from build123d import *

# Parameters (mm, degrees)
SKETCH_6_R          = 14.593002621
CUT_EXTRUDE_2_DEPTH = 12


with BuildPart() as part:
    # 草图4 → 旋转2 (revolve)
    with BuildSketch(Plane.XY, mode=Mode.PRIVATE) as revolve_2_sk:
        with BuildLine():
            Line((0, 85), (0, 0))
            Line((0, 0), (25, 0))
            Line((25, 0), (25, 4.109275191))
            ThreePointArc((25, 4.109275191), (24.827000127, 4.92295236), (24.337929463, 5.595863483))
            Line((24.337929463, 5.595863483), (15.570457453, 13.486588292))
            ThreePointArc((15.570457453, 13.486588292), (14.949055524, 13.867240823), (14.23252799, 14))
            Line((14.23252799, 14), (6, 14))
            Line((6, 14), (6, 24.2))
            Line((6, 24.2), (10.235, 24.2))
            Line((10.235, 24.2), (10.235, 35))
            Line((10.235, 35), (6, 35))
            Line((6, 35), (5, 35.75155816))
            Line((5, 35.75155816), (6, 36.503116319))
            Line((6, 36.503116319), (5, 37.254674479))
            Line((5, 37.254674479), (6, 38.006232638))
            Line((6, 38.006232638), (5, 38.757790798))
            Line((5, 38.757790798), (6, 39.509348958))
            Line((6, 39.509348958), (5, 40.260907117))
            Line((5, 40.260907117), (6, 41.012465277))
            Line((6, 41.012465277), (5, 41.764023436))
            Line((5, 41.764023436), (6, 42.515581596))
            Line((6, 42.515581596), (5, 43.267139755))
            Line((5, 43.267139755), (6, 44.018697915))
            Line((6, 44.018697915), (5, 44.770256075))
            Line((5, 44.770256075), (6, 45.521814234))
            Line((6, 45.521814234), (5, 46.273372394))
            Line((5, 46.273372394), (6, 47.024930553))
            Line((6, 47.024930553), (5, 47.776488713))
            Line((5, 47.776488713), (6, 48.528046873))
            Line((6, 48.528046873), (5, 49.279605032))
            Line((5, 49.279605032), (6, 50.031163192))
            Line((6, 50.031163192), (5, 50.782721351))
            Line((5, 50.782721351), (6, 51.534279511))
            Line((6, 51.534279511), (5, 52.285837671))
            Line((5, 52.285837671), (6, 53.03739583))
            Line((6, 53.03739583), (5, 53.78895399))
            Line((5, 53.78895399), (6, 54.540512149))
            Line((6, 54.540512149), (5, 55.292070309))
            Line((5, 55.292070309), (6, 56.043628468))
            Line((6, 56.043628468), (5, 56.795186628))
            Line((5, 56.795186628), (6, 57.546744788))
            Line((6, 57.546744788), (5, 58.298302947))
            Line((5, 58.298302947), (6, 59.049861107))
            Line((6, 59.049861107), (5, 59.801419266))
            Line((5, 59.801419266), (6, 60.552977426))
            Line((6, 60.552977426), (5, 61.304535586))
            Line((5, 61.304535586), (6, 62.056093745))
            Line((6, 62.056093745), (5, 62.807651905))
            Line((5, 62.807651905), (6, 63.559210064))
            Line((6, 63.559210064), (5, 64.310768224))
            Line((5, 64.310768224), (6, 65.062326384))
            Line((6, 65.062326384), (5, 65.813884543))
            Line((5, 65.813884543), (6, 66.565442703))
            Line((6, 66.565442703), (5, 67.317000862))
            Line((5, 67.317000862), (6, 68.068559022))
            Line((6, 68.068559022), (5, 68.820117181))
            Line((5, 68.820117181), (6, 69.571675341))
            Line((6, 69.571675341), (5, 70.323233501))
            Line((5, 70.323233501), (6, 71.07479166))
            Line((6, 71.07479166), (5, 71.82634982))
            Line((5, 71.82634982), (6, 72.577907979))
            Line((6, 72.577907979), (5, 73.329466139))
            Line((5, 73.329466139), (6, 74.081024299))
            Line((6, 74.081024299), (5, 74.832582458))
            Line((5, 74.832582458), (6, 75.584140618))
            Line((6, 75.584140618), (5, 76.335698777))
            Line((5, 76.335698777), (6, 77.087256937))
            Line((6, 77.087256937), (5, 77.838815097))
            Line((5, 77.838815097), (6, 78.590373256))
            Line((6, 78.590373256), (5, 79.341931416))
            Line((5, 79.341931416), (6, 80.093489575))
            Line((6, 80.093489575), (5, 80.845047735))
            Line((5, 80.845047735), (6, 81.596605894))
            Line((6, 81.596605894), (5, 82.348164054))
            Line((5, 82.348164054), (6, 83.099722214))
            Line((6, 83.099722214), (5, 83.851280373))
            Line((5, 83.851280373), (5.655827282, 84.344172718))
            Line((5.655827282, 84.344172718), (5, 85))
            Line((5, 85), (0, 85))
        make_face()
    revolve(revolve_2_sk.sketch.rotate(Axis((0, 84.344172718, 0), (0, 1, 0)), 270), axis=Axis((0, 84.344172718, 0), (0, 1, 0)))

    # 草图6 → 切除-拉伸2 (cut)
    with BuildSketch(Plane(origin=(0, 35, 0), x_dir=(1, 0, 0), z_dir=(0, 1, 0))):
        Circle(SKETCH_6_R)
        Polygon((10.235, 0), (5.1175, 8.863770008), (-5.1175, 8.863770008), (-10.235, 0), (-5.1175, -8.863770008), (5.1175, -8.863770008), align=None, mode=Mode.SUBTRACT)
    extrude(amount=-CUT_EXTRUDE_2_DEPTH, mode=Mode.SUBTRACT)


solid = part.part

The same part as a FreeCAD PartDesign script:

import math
import FreeCAD as App
import Part
import Sketcher

V = App.Vector
Q = App.Units.Quantity

doc = App.newDocument("Part")
body = doc.addObject("PartDesign::Body", "Body")

# Sketch on XY plane
sketch1 = body.newObject("Sketcher::SketchObject", "Sketch")
sketch1.AttachmentSupport = (doc.getObject("XY_Plane"), [""])
sketch1.MapMode = "FlatFace"
sketch1.addGeometry([
    Part.LineSegment(V(0, 85, 0), V(0, 0, 0)),  # 0
    Part.LineSegment(V(0, 0, 0), V(25, 0, 0)),  # 1
    Part.LineSegment(V(25, 0, 0), V(25, 4.1, 0)),  # 2
    Part.ArcOfCircle(Part.Circle(V(23, 4.1, 0), V(0, 0, 1), 2), math.radians(0), math.radians(48)),  # 3
    Part.LineSegment(V(24.3, 5.6, 0), V(15.6, 13.5, 0)),  # 4
    Part.ArcOfCircle(Part.Circle(V(14.2, 12, 0), V(0, 0, 1), 2), math.radians(48), math.radians(90)),  # 5
    Part.LineSegment(V(14.2, 14, 0), V(6, 14, 0)),  # 6
    Part.LineSegment(V(6, 14, 0), V(6, 24.2, 0)),  # 7
    Part.LineSegment(V(6, 24.2, 0), V(10.2, 24.2, 0)),  # 8
    Part.LineSegment(V(10.2, 24.2, 0), V(10.2, 35, 0)),  # 9
    Part.LineSegment(V(10.2, 35, 0), V(6, 35, 0)),  # 10
    Part.LineSegment(V(6, 35, 0), V(5, 35.8, 0)),  # 11
    Part.LineSegment(V(5, 35.8, 0), V(6, 36.5, 0)),  # 12
    Part.LineSegment(V(6, 36.5, 0), V(5, 37.3, 0)),  # 13
    Part.LineSegment(V(5, 37.3, 0), V(6, 38, 0)),  # 14
    Part.LineSegment(V(6, 38, 0), V(5, 38.8, 0)),  # 15
    Part.LineSegment(V(5, 38.8, 0), V(6, 39.5, 0)),  # 16
    Part.LineSegment(V(6, 39.5, 0), V(5, 40.3, 0)),  # 17
    Part.LineSegment(V(5, 40.3, 0), V(6, 41, 0)),  # 18
    Part.LineSegment(V(6, 41, 0), V(5, 41.8, 0)),  # 19
    Part.LineSegment(V(5, 41.8, 0), V(6, 42.5, 0)),  # 20
    Part.LineSegment(V(6, 42.5, 0), V(5, 43.3, 0)),  # 21
    Part.LineSegment(V(5, 43.3, 0), V(6, 44, 0)),  # 22
    Part.LineSegment(V(6, 44, 0), V(5, 44.8, 0)),  # 23
    Part.LineSegment(V(5, 44.8, 0), V(6, 45.5, 0)),  # 24
    Part.LineSegment(V(6, 45.5, 0), V(5, 46.3, 0)),  # 25
    Part.LineSegment(V(5, 46.3, 0), V(6, 47, 0)),  # 26
    Part.LineSegment(V(6, 47, 0), V(5, 47.8, 0)),  # 27
    Part.LineSegment(V(5, 47.8, 0), V(6, 48.5, 0)),  # 28
    Part.LineSegment(V(6, 48.5, 0), V(5, 49.3, 0)),  # 29
    Part.LineSegment(V(5, 49.3, 0), V(6, 50, 0)),  # 30
    Part.LineSegment(V(6, 50, 0), V(5, 50.8, 0)),  # 31
    Part.LineSegment(V(5, 50.8, 0), V(6, 51.5, 0)),  # 32
    Part.LineSegment(V(6, 51.5, 0), V(5, 52.3, 0)),  # 33
    Part.LineSegment(V(5, 52.3, 0), V(6, 53, 0)),  # 34
    Part.LineSegment(V(6, 53, 0), V(5, 53.8, 0)),  # 35
    Part.LineSegment(V(5, 53.8, 0), V(6, 54.5, 0)),  # 36
    Part.LineSegment(V(6, 54.5, 0), V(5, 55.3, 0)),  # 37
    Part.LineSegment(V(5, 55.3, 0), V(6, 56, 0)),  # 38
    Part.LineSegment(V(6, 56, 0), V(5, 56.8, 0)),  # 39
    Part.LineSegment(V(5, 56.8, 0), V(6, 57.5, 0)),  # 40
    Part.LineSegment(V(6, 57.5, 0), V(5, 58.3, 0)),  # 41
    Part.LineSegment(V(5, 58.3, 0), V(6, 59, 0)),  # 42
    Part.LineSegment(V(6, 59, 0), V(5, 59.8, 0)),  # 43
    Part.LineSegment(V(5, 59.8, 0), V(6, 60.6, 0)),  # 44
    Part.LineSegment(V(6, 60.6, 0), V(5, 61.3, 0)),  # 45
    Part.LineSegment(V(5, 61.3, 0), V(6, 62.1, 0)),  # 46
    Part.LineSegment(V(6, 62.1, 0), V(5, 62.8, 0)),  # 47
    Part.LineSegment(V(5, 62.8, 0), V(6, 63.6, 0)),  # 48
    Part.LineSegment(V(6, 63.6, 0), V(5, 64.3, 0)),  # 49
    Part.LineSegment(V(5, 64.3, 0), V(6, 65.1, 0)),  # 50
    Part.LineSegment(V(6, 65.1, 0), V(5, 65.8, 0)),  # 51
    Part.LineSegment(V(5, 65.8, 0), V(6, 66.6, 0)),  # 52
    Part.LineSegment(V(6, 66.6, 0), V(5, 67.3, 0)),  # 53
    Part.LineSegment(V(5, 67.3, 0), V(6, 68.1, 0)),  # 54
    Part.LineSegment(V(6, 68.1, 0), V(5, 68.8, 0)),  # 55
    Part.LineSegment(V(5, 68.8, 0), V(6, 69.6, 0)),  # 56
    Part.LineSegment(V(6, 69.6, 0), V(5, 70.3, 0)),  # 57
    Part.LineSegment(V(5, 70.3, 0), V(6, 71.1, 0)),  # 58
    Part.LineSegment(V(6, 71.1, 0), V(5, 71.8, 0)),  # 59
    Part.LineSegment(V(5, 71.8, 0), V(6, 72.6, 0)),  # 60
    Part.LineSegment(V(6, 72.6, 0), V(5, 73.3, 0)),  # 61
    Part.LineSegment(V(5, 73.3, 0), V(6, 74.1, 0)),  # 62
    Part.LineSegment(V(6, 74.1, 0), V(5, 74.8, 0)),  # 63
    Part.LineSegment(V(5, 74.8, 0), V(6, 75.6, 0)),  # 64
    Part.LineSegment(V(6, 75.6, 0), V(5, 76.3, 0)),  # 65
    Part.LineSegment(V(5, 76.3, 0), V(6, 77.1, 0)),  # 66
    Part.LineSegment(V(6, 77.1, 0), V(5, 77.8, 0)),  # 67
    Part.LineSegment(V(5, 77.8, 0), V(6, 78.6, 0)),  # 68
    Part.LineSegment(V(6, 78.6, 0), V(5, 79.3, 0)),  # 69
    Part.LineSegment(V(5, 79.3, 0), V(6, 80.1, 0)),  # 70
    Part.LineSegment(V(6, 80.1, 0), V(5, 80.8, 0)),  # 71
    Part.LineSegment(V(5, 80.8, 0), V(6, 81.6, 0)),  # 72
    Part.LineSegment(V(6, 81.6, 0), V(5, 82.3, 0)),  # 73
    Part.LineSegment(V(5, 82.3, 0), V(6, 83.1, 0)),  # 74
    Part.LineSegment(V(6, 83.1, 0), V(5, 83.9, 0)),  # 75
    Part.LineSegment(V(5, 83.9, 0), V(5.7, 84.3, 0)),  # 76
    Part.LineSegment(V(5.7, 84.3, 0), V(5, 85, 0)),  # 77
    Part.LineSegment(V(5, 85, 0), V(0, 85, 0)),  # 78
], False)
sketch1.addConstraint([
    Sketcher.Constraint("Coincident", 0, 2, 1, 1),
    Sketcher.Constraint("Coincident", 1, 2, 2, 1),
    Sketcher.Constraint("Tangent", 2, 2, 3, 1),
    Sketcher.Constraint("Tangent", 3, 2, 4, 1),
    Sketcher.Constraint("Tangent", 4, 2, 5, 1),
    Sketcher.Constraint("Tangent", 5, 2, 6, 1),
    Sketcher.Constraint("Coincident", 6, 2, 7, 1),
    Sketcher.Constraint("Coincident", 7, 2, 8, 1),
    Sketcher.Constraint("Coincident", 8, 2, 9, 1),
    Sketcher.Constraint("Coincident", 9, 2, 10, 1),
    Sketcher.Constraint("Coincident", 10, 2, 11, 1),
    Sketcher.Constraint("Coincident", 11, 2, 12, 1),
    Sketcher.Constraint("Coincident", 12, 2, 13, 1),
    Sketcher.Constraint("Coincident", 13, 2, 14, 1),
    Sketcher.Constraint("Coincident", 14, 2, 15, 1),
    Sketcher.Constraint("Coincident", 15, 2, 16, 1),
    Sketcher.Constraint("Coincident", 16, 2, 17, 1),
    Sketcher.Constraint("Coincident", 17, 2, 18, 1),
    Sketcher.Constraint("Coincident", 18, 2, 19, 1),
    Sketcher.Constraint("Coincident", 19, 2, 20, 1),
    Sketcher.Constraint("Coincident", 20, 2, 21, 1),
    Sketcher.Constraint("Coincident", 21, 2, 22, 1),
    Sketcher.Constraint("Coincident", 22, 2, 23, 1),
    Sketcher.Constraint("Coincident", 23, 2, 24, 1),
    Sketcher.Constraint("Coincident", 24, 2, 25, 1),
    Sketcher.Constraint("Coincident", 25, 2, 26, 1),
    Sketcher.Constraint("Coincident", 26, 2, 27, 1),
    Sketcher.Constraint("Coincident", 27, 2, 28, 1),
    Sketcher.Constraint("Coincident", 28, 2, 29, 1),
    Sketcher.Constraint("Coincident", 29, 2, 30, 1),
    Sketcher.Constraint("Coincident", 30, 2, 31, 1),
    Sketcher.Constraint("Coincident", 31, 2, 32, 1),
    Sketcher.Constraint("Coincident", 32, 2, 33, 1),
    Sketcher.Constraint("Coincident", 33, 2, 34, 1),
    Sketcher.Constraint("Coincident", 34, 2, 35, 1),
    Sketcher.Constraint("Coincident", 35, 2, 36, 1),
    Sketcher.Constraint("Coincident", 36, 2, 37, 1),
    Sketcher.Constraint("Coincident", 37, 2, 38, 1),
    Sketcher.Constraint("Coincident", 38, 2, 39, 1),
    Sketcher.Constraint("Coincident", 39, 2, 40, 1),
    Sketcher.Constraint("Coincident", 40, 2, 41, 1),
    Sketcher.Constraint("Coincident", 41, 2, 42, 1),
    Sketcher.Constraint("Coincident", 42, 2, 43, 1),
    Sketcher.Constraint("Coincident", 43, 2, 44, 1),
    Sketcher.Constraint("Coincident", 44, 2, 45, 1),
    Sketcher.Constraint("Coincident", 45, 2, 46, 1),
    Sketcher.Constraint("Coincident", 46, 2, 47, 1),
    Sketcher.Constraint("Coincident", 47, 2, 48, 1),
    Sketcher.Constraint("Coincident", 48, 2, 49, 1),
    Sketcher.Constraint("Coincident", 49, 2, 50, 1),
    Sketcher.Constraint("Coincident", 50, 2, 51, 1),
    Sketcher.Constraint("Coincident", 51, 2, 52, 1),
    Sketcher.Constraint("Coincident", 52, 2, 53, 1),
    Sketcher.Constraint("Coincident", 53, 2, 54, 1),
    Sketcher.Constraint("Coincident", 54, 2, 55, 1),
    Sketcher.Constraint("Coincident", 55, 2, 56, 1),
    Sketcher.Constraint("Coincident", 56, 2, 57, 1),
    Sketcher.Constraint("Coincident", 57, 2, 58, 1),
    Sketcher.Constraint("Coincident", 58, 2, 59, 1),
    Sketcher.Constraint("Coincident", 59, 2, 60, 1),
    Sketcher.Constraint("Coincident", 60, 2, 61, 1),
    Sketcher.Constraint("Coincident", 61, 2, 62, 1),
    Sketcher.Constraint("Coincident", 62, 2, 63, 1),
    Sketcher.Constraint("Coincident", 63, 2, 64, 1),
    Sketcher.Constraint("Coincident", 64, 2, 65, 1),
    Sketcher.Constraint("Coincident", 65, 2, 66, 1),
    Sketcher.Constraint("Coincident", 66, 2, 67, 1),
    Sketcher.Constraint("Coincident", 67, 2, 68, 1),
    Sketcher.Constraint("Coincident", 68, 2, 69, 1),
    Sketcher.Constraint("Coincident", 69, 2, 70, 1),
    Sketcher.Constraint("Coincident", 70, 2, 71, 1),
    Sketcher.Constraint("Coincident", 71, 2, 72, 1),
    Sketcher.Constraint("Coincident", 72, 2, 73, 1),
    Sketcher.Constraint("Coincident", 73, 2, 74, 1),
    Sketcher.Constraint("Coincident", 74, 2, 75, 1),
    Sketcher.Constraint("Coincident", 75, 2, 76, 1),
    Sketcher.Constraint("Coincident", 76, 2, 77, 1),
    Sketcher.Constraint("Coincident", 77, 2, 78, 1),
    Sketcher.Constraint("Coincident", 78, 2, 0, 1),
    Sketcher.Constraint("Vertical", 0),
    Sketcher.Constraint("Horizontal", 1),
    Sketcher.Constraint("Vertical", 2),
    Sketcher.Constraint("Horizontal", 6),
    Sketcher.Constraint("Vertical", 7),
    Sketcher.Constraint("Horizontal", 8),
    Sketcher.Constraint("Vertical", 9),
    Sketcher.Constraint("Horizontal", 10),
    Sketcher.Constraint("Horizontal", 78),
    Sketcher.Constraint("Coincident", 0, 2, -1, 1),
    Sketcher.Constraint("Equal", 3, 5),
    Sketcher.Constraint("Parallel", 11, 13),
    Sketcher.Constraint("Parallel", 12, 14),
    Sketcher.Constraint("Parallel", 13, 15),
    Sketcher.Constraint("Parallel", 14, 16),
    Sketcher.Constraint("Parallel", 15, 17),
    Sketcher.Constraint("Parallel", 16, 18),
    Sketcher.Constraint("Parallel", 17, 19),
    Sketcher.Constraint("Parallel", 18, 20),
    Sketcher.Constraint("Parallel", 19, 21),
    Sketcher.Constraint("Parallel", 20, 22),
    Sketcher.Constraint("Parallel", 21, 23),
    Sketcher.Constraint("Parallel", 22, 24),
    Sketcher.Constraint("Parallel", 23, 25),
    Sketcher.Constraint("Parallel", 24, 26),
    Sketcher.Constraint("Parallel", 25, 27),
    Sketcher.Constraint("Parallel", 26, 28),
    Sketcher.Constraint("Parallel", 27, 29),
    Sketcher.Constraint("Parallel", 28, 30),
    Sketcher.Constraint("Parallel", 29, 31),
    Sketcher.Constraint("Parallel", 30, 32),
    Sketcher.Constraint("Parallel", 31, 33),
    Sketcher.Constraint("Parallel", 32, 34),
    Sketcher.Constraint("Parallel", 33, 35),
    Sketcher.Constraint("Parallel", 34, 36),
    Sketcher.Constraint("Parallel", 35, 37),
    Sketcher.Constraint("Parallel", 36, 38),
    Sketcher.Constraint("Parallel", 37, 39),
    Sketcher.Constraint("Parallel", 38, 40),
    Sketcher.Constraint("Parallel", 39, 41),
    Sketcher.Constraint("Parallel", 40, 42),
    Sketcher.Constraint("Parallel", 41, 43),
    Sketcher.Constraint("Parallel", 42, 44),
    Sketcher.Constraint("Parallel", 43, 45),
    Sketcher.Constraint("Parallel", 44, 46),
    Sketcher.Constraint("Parallel", 45, 47),
    Sketcher.Constraint("Parallel", 46, 48),
    Sketcher.Constraint("Parallel", 47, 49),
    Sketcher.Constraint("Parallel", 48, 50),
    Sketcher.Constraint("Parallel", 49, 51),
    Sketcher.Constraint("Parallel", 50, 52),
    Sketcher.Constraint("Parallel", 51, 53),
    Sketcher.Constraint("Parallel", 52, 54),
    Sketcher.Constraint("Parallel", 53, 55),
    Sketcher.Constraint("Parallel", 54, 56),
    Sketcher.Constraint("Parallel", 55, 57),
    Sketcher.Constraint("Parallel", 56, 58),
    Sketcher.Constraint("Parallel", 57, 59),
    Sketcher.Constraint("Parallel", 58, 60),
    Sketcher.Constraint("Parallel", 59, 61),
    Sketcher.Constraint("Parallel", 60, 62),
    Sketcher.Constraint("Parallel", 61, 63),
    Sketcher.Constraint("Parallel", 62, 64),
    Sketcher.Constraint("Parallel", 63, 65),
    Sketcher.Constraint("Parallel", 64, 66),
    Sketcher.Constraint("Parallel", 65, 67),
    Sketcher.Constraint("Parallel", 66, 68),
    Sketcher.Constraint("Parallel", 67, 69),
    Sketcher.Constraint("Parallel", 68, 70),
    Sketcher.Constraint("Parallel", 69, 71),
    Sketcher.Constraint("Parallel", 70, 72),
    Sketcher.Constraint("Parallel", 71, 73),
    Sketcher.Constraint("Parallel", 72, 74),
    Sketcher.Constraint("Parallel", 73, 75),
    Sketcher.Constraint("Parallel", 74, 76),
    Sketcher.Constraint("Vertical", 7, 2, 10, 2),
    Sketcher.Constraint("Vertical", 10, 2, 12, 2),
    Sketcher.Constraint("Vertical", 11, 2, 13, 2),
    Sketcher.Constraint("Vertical", 12, 2, 14, 2),
    Sketcher.Constraint("Vertical", 13, 2, 15, 2),
    Sketcher.Constraint("Vertical", 14, 2, 16, 2),
    Sketcher.Constraint("Vertical", 15, 2, 17, 2),
    Sketcher.Constraint("Vertical", 16, 2, 18, 2),
    Sketcher.Constraint("Vertical", 17, 2, 19, 2),
    Sketcher.Constraint("Vertical", 18, 2, 20, 2),
    Sketcher.Constraint("Vertical", 19, 2, 21, 2),
    Sketcher.Constraint("Vertical", 20, 2, 22, 2),
    Sketcher.Constraint("Vertical", 21, 2, 23, 2),
    Sketcher.Constraint("Vertical", 22, 2, 24, 2),
    Sketcher.Constraint("Vertical", 23, 2, 25, 2),
    Sketcher.Constraint("Vertical", 24, 2, 26, 2),
    Sketcher.Constraint("Vertical", 25, 2, 27, 2),
    Sketcher.Constraint("Vertical", 26, 2, 28, 2),
    Sketcher.Constraint("Vertical", 27, 2, 29, 2),
    Sketcher.Constraint("Vertical", 28, 2, 30, 2),
    Sketcher.Constraint("Vertical", 29, 2, 31, 2),
    Sketcher.Constraint("Vertical", 30, 2, 32, 2),
    Sketcher.Constraint("Vertical", 31, 2, 33, 2),
    Sketcher.Constraint("Vertical", 32, 2, 34, 2),
    Sketcher.Constraint("Vertical", 33, 2, 35, 2),
    Sketcher.Constraint("Vertical", 34, 2, 36, 2),
    Sketcher.Constraint("Vertical", 35, 2, 37, 2),
    Sketcher.Constraint("Vertical", 36, 2, 38, 2),
    Sketcher.Constraint("Vertical", 37, 2, 39, 2),
    Sketcher.Constraint("Vertical", 38, 2, 40, 2),
    Sketcher.Constraint("Vertical", 39, 2, 41, 2),
    Sketcher.Constraint("Vertical", 40, 2, 42, 2),
    Sketcher.Constraint("Vertical", 41, 2, 43, 2),
    Sketcher.Constraint("Vertical", 42, 2, 44, 2),
    Sketcher.Constraint("Vertical", 43, 2, 45, 2),
    Sketcher.Constraint("Vertical", 44, 2, 46, 2),
    Sketcher.Constraint("Vertical", 45, 2, 47, 2),
    Sketcher.Constraint("Vertical", 46, 2, 48, 2),
    Sketcher.Constraint("Vertical", 47, 2, 49, 2),
    Sketcher.Constraint("Vertical", 48, 2, 50, 2),
    Sketcher.Constraint("Vertical", 49, 2, 51, 2),
    Sketcher.Constraint("Vertical", 50, 2, 52, 2),
    Sketcher.Constraint("Vertical", 51, 2, 53, 2),
    Sketcher.Constraint("Vertical", 52, 2, 54, 2),
    Sketcher.Constraint("Vertical", 53, 2, 55, 2),
    Sketcher.Constraint("Vertical", 54, 2, 56, 2),
    Sketcher.Constraint("Vertical", 55, 2, 57, 2),
    Sketcher.Constraint("Vertical", 56, 2, 58, 2),
    Sketcher.Constraint("Vertical", 57, 2, 59, 2),
    Sketcher.Constraint("Vertical", 58, 2, 60, 2),
    Sketcher.Constraint("Vertical", 59, 2, 61, 2),
    Sketcher.Constraint("Vertical", 60, 2, 62, 2),
    Sketcher.Constraint("Vertical", 61, 2, 63, 2),
    Sketcher.Constraint("Vertical", 62, 2, 64, 2),
    Sketcher.Constraint("Vertical", 63, 2, 65, 2),
    Sketcher.Constraint("Vertical", 64, 2, 66, 2),
    Sketcher.Constraint("Vertical", 65, 2, 67, 2),
    Sketcher.Constraint("Vertical", 66, 2, 68, 2),
    Sketcher.Constraint("Vertical", 67, 2, 69, 2),
    Sketcher.Constraint("Vertical", 68, 2, 70, 2),
    Sketcher.Constraint("Vertical", 69, 2, 71, 2),
    Sketcher.Constraint("Vertical", 70, 2, 72, 2),
    Sketcher.Constraint("Vertical", 71, 2, 73, 2),
    Sketcher.Constraint("Vertical", 72, 2, 74, 2),
    Sketcher.Constraint("Vertical", 73, 2, 75, 2),
    Sketcher.Constraint("Vertical", 75, 2, 77, 2),
    Sketcher.Constraint("Equal", 11, 12),
    Sketcher.Constraint("Radius", 3, Q("2 mm")),
    Sketcher.Constraint("DistanceX", 1, 1, 1, 2, Q("25 mm")),
    Sketcher.Constraint("DistanceX", 78, 2, 78, 1, Q("5 mm")),
    Sketcher.Constraint("DistanceY", 0, 2, 0, 1, Q("85 mm")),
    Sketcher.Constraint("Angle", 77, Q("135 deg")),
    Sketcher.Constraint("DistanceY", 7, 1, 7, 2, Q("10.2 mm")),
    Sketcher.Constraint("DistanceY", 9, 1, 9, 2, Q("10.8 mm")),
    Sketcher.Constraint("DistanceY", -1, 1, 5, 3, Q("12 mm")),
    Sketcher.Constraint("DistanceX", -1, 1, 6, 2, Q("6 mm")),
    Sketcher.Constraint("DistanceX", 8, 1, 8, 2, Q("4.235 mm")),
    Sketcher.Constraint("DistanceY", -1, 1, 53, 2, Q("67.317001 mm")),
    Sketcher.Constraint("DistanceX", 6, 2, 6, 1, Q("8.232528 mm")),
    Sketcher.Constraint("DistanceY", 2, 1, 2, 2, Q("4.109275 mm")),
])
revolution = body.newObject("PartDesign::Revolution", "Revolution")
revolution.Profile = sketch1
revolution.ReferenceAxis = (sketch1, ["V_Axis"])
revolution.Angle = 360

# Sketch on XZ plane
sketch2 = body.newObject("Sketcher::SketchObject", "Sketch001")
sketch2.AttachmentSupport = (doc.getObject("XZ_Plane"), [""])
sketch2.MapMode = "FlatFace"
sketch2.AttachmentOffset = App.Placement(V(0, 0, -35), App.Rotation())
sketch2.addGeometry([
    Part.Circle(V(0, 0, 0), V(0, 0, 1), 15),  # 0
    Part.LineSegment(V(5, -9, 0), V(10, 0, 0)),  # 1
    Part.LineSegment(V(10, 0, 0), V(5, 9, 0)),  # 2
    Part.LineSegment(V(5, 9, 0), V(-5, 9, 0)),  # 3
    Part.LineSegment(V(-5, 9, 0), V(-10, 0, 0)),  # 4
    Part.LineSegment(V(-10, 0, 0), V(-5, -9, 0)),  # 5
    Part.LineSegment(V(-5, -9, 0), V(5, -9, 0)),  # 6
], False)
sketch2.addConstraint([
    Sketcher.Constraint("Coincident", 1, 2, 2, 1),
    Sketcher.Constraint("Coincident", 2, 2, 3, 1),
    Sketcher.Constraint("Coincident", 3, 2, 4, 1),
    Sketcher.Constraint("Coincident", 4, 2, 5, 1),
    Sketcher.Constraint("Coincident", 5, 2, 6, 1),
    Sketcher.Constraint("Coincident", 6, 2, 1, 1),
    Sketcher.Constraint("Horizontal", 3),
    Sketcher.Constraint("Horizontal", 6),
    Sketcher.Constraint("Coincident", 0, 3, -1, 1),
    Sketcher.Constraint("Symmetric", 1, 2, 4, 2, -1, 1),
    Sketcher.Constraint("Symmetric", 2, 2, 5, 2, -1, 1),
    Sketcher.Constraint("PointOnObject", 1, 2, -1),
    Sketcher.Constraint("Parallel", 1, 4),
    Sketcher.Constraint("Vertical", 3, 2, 5, 2),
    Sketcher.Constraint("Angle", 1, Q("60 deg")),
    Sketcher.Constraint("DistanceX", 3, 2, 3, 1, Q("10.235 mm")),
    Sketcher.Constraint("DistanceX", 4, 2, 1, 2, Q("20.47 mm")),
    Sketcher.Constraint("Diameter", 0, Q("29.186005 mm")),
])
pocket1 = body.newObject("PartDesign::Pocket", "Pocket")
pocket1.Profile = sketch2
pocket1.Length = 12
pocket1.Reversed = True

doc.recompute()
